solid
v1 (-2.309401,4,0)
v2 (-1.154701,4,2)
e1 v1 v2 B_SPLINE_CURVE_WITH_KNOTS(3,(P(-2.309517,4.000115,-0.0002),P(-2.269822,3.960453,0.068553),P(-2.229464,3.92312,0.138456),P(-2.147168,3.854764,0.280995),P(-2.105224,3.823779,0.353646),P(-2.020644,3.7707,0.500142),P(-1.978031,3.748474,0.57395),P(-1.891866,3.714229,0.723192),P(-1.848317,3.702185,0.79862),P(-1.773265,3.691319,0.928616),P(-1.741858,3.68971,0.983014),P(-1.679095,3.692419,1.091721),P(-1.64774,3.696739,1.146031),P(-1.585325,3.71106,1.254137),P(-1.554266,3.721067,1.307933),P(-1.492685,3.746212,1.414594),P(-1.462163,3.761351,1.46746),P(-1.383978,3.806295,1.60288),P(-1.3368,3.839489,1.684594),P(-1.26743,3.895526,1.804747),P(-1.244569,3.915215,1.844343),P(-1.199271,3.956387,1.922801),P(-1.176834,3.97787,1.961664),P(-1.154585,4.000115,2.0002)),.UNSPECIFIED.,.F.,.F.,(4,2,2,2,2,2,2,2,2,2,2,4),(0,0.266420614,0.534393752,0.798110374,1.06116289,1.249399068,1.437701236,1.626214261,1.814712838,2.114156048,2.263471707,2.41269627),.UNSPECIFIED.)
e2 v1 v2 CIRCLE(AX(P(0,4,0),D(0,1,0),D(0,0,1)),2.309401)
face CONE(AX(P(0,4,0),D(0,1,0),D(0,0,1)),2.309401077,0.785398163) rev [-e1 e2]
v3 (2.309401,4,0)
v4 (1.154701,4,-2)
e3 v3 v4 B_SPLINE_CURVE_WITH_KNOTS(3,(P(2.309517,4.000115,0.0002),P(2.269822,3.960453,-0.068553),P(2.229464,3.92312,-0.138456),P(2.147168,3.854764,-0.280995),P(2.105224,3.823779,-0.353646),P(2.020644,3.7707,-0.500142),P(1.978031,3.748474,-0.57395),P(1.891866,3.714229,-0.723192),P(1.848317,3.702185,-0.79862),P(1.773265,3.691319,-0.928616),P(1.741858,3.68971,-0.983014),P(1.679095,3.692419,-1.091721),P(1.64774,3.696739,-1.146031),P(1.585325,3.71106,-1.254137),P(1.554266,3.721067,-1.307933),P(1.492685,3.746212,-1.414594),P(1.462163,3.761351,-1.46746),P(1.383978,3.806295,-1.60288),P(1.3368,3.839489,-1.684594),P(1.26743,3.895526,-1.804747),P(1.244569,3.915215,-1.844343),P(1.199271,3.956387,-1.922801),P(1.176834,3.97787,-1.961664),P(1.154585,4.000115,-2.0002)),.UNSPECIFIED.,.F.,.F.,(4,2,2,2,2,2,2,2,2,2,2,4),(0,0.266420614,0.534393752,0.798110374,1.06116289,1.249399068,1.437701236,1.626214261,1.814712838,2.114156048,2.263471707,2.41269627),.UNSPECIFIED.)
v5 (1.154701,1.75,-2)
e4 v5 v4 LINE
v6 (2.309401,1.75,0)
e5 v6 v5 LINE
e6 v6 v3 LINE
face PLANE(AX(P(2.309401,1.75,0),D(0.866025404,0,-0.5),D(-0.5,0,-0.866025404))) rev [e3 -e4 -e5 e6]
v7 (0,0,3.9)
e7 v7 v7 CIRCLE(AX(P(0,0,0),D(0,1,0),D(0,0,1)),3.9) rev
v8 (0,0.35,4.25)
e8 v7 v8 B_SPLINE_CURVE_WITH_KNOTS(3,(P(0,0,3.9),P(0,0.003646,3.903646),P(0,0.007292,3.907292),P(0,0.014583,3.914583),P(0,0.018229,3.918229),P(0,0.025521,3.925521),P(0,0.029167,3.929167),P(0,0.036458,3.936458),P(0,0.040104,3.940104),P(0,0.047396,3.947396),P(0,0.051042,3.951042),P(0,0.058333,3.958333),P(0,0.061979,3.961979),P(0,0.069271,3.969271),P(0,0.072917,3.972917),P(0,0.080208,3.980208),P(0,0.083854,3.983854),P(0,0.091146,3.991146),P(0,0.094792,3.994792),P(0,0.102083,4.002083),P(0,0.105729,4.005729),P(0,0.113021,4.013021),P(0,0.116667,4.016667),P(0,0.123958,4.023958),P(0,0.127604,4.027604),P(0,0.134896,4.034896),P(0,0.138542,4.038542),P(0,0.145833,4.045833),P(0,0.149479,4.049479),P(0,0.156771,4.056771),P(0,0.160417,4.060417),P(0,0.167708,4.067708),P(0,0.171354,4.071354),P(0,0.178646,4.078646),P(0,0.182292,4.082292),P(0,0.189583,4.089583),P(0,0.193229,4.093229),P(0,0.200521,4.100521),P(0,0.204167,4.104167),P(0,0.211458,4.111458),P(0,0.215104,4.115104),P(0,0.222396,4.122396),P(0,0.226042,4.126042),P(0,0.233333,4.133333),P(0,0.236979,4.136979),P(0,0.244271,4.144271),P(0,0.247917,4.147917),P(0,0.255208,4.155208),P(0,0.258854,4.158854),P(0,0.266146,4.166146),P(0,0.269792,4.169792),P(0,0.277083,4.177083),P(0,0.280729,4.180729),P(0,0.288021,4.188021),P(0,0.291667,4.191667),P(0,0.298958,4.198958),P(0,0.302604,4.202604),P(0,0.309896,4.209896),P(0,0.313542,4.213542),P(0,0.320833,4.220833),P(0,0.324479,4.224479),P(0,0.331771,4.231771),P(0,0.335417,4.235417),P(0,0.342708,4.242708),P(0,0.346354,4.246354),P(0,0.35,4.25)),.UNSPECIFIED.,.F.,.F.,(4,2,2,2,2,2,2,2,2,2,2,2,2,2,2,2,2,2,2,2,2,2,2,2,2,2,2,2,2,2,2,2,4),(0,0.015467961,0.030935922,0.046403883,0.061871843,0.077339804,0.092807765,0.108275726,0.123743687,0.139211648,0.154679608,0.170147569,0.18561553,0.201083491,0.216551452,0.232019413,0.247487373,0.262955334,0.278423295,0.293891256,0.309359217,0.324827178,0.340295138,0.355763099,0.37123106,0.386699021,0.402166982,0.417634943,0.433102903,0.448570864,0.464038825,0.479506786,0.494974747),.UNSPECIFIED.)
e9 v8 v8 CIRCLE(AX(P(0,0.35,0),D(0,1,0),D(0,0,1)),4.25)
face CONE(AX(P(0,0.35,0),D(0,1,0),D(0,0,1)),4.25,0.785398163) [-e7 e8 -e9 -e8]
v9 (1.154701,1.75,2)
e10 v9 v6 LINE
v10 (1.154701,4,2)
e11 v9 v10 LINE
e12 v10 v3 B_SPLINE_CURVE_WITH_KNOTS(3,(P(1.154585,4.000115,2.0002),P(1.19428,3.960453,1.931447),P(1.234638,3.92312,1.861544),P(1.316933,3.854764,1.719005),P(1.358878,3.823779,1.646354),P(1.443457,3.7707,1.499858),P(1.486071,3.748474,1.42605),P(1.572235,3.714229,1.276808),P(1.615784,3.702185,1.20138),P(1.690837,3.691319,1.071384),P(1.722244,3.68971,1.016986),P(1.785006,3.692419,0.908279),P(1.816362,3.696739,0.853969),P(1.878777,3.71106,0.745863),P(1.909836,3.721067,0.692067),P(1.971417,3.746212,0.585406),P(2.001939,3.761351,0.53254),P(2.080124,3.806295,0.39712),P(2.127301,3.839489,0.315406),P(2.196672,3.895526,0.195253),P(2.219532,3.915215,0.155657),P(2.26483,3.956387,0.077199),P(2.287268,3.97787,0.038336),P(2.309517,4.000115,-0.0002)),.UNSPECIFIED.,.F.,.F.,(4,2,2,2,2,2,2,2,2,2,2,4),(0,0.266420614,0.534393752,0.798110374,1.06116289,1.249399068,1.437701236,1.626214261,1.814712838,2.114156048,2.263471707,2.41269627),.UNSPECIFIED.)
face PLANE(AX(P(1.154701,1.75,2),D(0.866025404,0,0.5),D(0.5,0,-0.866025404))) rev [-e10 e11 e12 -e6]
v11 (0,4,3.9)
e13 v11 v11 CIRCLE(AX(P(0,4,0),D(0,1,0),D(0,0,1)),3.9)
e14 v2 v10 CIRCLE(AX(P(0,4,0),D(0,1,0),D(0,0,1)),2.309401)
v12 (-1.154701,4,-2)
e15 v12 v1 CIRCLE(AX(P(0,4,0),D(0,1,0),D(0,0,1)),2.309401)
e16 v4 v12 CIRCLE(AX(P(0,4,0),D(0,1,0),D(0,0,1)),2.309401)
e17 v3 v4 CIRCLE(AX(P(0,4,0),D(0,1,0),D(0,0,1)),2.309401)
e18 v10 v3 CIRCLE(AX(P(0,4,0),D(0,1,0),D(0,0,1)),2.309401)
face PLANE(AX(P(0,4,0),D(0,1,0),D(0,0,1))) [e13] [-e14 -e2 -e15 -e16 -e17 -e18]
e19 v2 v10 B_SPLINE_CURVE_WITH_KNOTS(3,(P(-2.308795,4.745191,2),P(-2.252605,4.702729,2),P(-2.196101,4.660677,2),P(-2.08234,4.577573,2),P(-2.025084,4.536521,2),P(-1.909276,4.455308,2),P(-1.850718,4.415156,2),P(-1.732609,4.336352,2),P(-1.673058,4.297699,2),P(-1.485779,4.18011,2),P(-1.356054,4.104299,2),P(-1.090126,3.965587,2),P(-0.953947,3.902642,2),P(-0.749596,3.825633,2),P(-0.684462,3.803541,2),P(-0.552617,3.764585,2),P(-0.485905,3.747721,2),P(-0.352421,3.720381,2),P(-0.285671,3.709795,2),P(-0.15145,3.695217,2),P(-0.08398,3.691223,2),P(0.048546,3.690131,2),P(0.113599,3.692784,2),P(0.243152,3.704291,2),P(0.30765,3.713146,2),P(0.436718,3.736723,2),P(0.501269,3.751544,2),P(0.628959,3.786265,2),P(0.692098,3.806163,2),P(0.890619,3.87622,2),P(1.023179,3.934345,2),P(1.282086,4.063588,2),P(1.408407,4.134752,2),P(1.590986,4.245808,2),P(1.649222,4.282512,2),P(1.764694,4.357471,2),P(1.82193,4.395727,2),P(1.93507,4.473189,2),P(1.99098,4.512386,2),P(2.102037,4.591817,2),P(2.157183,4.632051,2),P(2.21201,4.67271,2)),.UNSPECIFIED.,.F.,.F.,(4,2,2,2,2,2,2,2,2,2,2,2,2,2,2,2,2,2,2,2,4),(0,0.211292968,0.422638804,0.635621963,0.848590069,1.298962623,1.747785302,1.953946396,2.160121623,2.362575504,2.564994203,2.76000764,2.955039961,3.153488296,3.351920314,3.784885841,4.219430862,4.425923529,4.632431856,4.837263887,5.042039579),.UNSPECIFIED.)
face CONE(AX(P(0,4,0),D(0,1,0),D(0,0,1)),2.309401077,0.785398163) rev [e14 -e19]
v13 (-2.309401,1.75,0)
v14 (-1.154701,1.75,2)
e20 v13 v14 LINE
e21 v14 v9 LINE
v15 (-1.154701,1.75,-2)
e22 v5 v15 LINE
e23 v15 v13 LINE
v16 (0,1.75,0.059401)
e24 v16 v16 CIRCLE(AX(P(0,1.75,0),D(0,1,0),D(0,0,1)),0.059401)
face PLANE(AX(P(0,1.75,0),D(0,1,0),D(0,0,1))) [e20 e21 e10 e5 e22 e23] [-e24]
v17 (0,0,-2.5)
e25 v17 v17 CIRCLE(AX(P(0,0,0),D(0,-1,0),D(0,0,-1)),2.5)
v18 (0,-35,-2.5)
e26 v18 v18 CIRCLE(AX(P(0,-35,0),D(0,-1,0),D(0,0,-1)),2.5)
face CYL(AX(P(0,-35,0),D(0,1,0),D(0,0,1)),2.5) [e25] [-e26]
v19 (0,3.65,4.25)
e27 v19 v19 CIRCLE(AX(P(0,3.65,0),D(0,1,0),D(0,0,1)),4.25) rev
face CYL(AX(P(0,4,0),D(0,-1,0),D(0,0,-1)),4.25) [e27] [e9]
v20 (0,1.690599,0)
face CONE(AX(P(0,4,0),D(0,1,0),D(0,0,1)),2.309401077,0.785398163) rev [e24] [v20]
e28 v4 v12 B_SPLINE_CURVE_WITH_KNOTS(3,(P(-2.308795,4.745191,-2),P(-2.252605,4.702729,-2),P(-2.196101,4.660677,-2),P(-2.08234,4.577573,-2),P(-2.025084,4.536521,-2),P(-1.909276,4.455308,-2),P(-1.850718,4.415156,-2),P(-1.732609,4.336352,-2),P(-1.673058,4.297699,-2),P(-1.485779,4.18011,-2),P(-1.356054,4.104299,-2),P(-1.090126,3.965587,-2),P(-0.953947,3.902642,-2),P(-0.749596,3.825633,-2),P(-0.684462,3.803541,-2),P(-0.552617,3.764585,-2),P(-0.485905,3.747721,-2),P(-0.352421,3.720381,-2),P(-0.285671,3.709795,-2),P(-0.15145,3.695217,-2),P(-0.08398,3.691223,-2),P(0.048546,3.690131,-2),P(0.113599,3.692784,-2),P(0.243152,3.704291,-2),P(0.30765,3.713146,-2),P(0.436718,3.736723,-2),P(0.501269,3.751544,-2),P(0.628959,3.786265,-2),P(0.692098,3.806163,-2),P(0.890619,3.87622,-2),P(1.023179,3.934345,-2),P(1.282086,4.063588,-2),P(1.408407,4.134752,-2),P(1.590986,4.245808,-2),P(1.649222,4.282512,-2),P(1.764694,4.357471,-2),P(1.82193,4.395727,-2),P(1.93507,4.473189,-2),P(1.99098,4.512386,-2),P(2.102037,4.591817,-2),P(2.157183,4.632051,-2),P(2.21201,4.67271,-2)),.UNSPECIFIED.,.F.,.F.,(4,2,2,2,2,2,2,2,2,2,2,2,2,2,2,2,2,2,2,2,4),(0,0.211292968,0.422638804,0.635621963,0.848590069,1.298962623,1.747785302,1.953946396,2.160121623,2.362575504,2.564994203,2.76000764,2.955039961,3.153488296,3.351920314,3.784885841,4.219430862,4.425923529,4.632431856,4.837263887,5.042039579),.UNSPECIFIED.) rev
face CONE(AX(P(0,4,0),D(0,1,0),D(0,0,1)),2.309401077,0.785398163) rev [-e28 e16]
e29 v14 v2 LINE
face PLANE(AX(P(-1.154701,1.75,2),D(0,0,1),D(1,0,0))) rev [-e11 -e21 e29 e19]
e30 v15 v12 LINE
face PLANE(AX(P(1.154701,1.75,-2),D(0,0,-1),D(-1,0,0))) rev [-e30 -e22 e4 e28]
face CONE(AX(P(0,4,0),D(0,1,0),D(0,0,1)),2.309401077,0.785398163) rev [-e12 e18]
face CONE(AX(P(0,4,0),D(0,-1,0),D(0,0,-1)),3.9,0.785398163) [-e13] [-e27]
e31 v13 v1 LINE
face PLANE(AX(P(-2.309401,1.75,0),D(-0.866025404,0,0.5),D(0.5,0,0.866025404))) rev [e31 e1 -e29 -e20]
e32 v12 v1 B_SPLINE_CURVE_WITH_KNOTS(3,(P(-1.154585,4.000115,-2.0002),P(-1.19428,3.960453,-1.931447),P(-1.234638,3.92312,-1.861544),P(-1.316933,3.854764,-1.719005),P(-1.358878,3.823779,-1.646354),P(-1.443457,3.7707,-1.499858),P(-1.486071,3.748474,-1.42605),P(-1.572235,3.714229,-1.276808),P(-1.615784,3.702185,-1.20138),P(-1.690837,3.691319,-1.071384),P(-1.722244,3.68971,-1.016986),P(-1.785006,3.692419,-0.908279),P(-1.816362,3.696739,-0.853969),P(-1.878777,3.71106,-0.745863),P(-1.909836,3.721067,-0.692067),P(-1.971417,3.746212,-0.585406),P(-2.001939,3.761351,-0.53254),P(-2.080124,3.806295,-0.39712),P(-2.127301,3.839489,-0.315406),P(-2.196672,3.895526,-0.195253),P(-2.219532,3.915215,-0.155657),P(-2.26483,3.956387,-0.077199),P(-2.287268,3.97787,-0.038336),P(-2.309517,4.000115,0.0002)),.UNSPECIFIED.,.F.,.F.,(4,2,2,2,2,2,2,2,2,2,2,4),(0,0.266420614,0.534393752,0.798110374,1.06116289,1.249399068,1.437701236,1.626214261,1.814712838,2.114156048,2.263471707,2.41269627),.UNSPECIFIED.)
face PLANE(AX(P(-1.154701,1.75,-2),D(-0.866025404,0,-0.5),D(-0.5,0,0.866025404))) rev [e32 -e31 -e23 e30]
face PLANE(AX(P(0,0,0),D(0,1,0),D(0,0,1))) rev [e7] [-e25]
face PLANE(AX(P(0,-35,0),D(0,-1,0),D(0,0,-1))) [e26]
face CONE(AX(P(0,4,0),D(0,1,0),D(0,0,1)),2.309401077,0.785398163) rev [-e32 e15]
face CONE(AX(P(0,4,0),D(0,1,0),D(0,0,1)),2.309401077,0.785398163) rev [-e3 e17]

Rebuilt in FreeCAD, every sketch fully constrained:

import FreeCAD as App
import Part
import Sketcher
Q = App.Units.Quantity


def edges_at(feature, points):
    """Names of the edges that pass closest to the given points."""
    edges = feature.Shape.Edges
    near = lambda p: min(range(len(edges)), key=lambda i: edges[i].distToShape(Part.Vertex(*p))[0])
    return sorted({f"Edge{near(p) + 1}" for p in points})

doc = App.newDocument("Part")
body = doc.addObject("PartDesign::Body", "Body")

# Sketch on XZ plane
sketch1 = body.newObject("Sketcher::SketchObject", "Sketch")
sketch1.AttachmentSupport = (doc.getObject("XZ_Plane"), [""])
sketch1.MapMode = "FlatFace"
sketch1.addGeometry(Part.Circle(App.Vector(0, 0, 0), App.Vector(0, 0, 1), 4.25), False)
sketch1.addConstraint([
    Sketcher.Constraint("Coincident", 0, 3, -1, 1),
    Sketcher.Constraint("Diameter", 0, 8.5),
])
pad1 = body.newObject("PartDesign::Pad", "Pad")
pad1.Profile = sketch1
pad1.Length = 4
pad1.Reversed = True

# Sketch on XZ plane
sketch2 = body.newObject("Sketcher::SketchObject", "Sketch001")
sketch2.AttachmentSupport = (doc.getObject("XZ_Plane"), [""])
sketch2.MapMode = "FlatFace"
sketch2.AttachmentOffset = App.Placement(App.Vector(0, 0, -4), App.Rotation())
sketch2.addGeometry([
    Part.LineSegment(App.Vector(1.154701, -2, 0), App.Vector(-1.154701, -2, 0)),  # 0
    Part.LineSegment(App.Vector(-1.154701, -2, 0), App.Vector(-2.309401, 0, 0)),  # 1
    Part.LineSegment(App.Vector(-2.309401, 0, 0), App.Vector(-1.154701, 2, 0)),  # 2
    Part.LineSegment(App.Vector(-1.154701, 2, 0), App.Vector(1.154701, 2, 0)),  # 3
    Part.LineSegment(App.Vector(1.154701, 2, 0), App.Vector(2.309401, 0, 0)),  # 4
    Part.LineSegment(App.Vector(2.309401, 0, 0), App.Vector(1.154701, -2, 0)),  # 5
], False)
sketch2.addConstraint([
    Sketcher.Constraint("Coincident", 0, 2, 1, 1),
    Sketcher.Constraint("Coincident", 1, 2, 2, 1),
    Sketcher.Constraint("Coincident", 2, 2, 3, 1),
    Sketcher.Constraint("Coincident", 3, 2, 4, 1),
    Sketcher.Constraint("Coincident", 4, 2, 5, 1),
    Sketcher.Constraint("Coincident", 5, 2, 0, 1),
    Sketcher.Constraint("Horizontal", 0),
    Sketcher.Constraint("Horizontal", 3),
    Sketcher.Constraint("Symmetric", 0, 2, 3, 2, -1, 1),
    Sketcher.Constraint("Symmetric", 1, 2, 4, 2, -1, 1),
    Sketcher.Constraint("PointOnObject", 1, 2, -1),
    Sketcher.Constraint("Parallel", 2, 5),
    Sketcher.Constraint("Vertical", 0, 2, 2, 2),
    Sketcher.Constraint("Angle", 1, Q("120 deg")),
    Sketcher.Constraint("DistanceY", 0, 2, -1, 1, 2.0),
    Sketcher.Constraint("DistanceX", 0, 2, 0, 1, 2.309401),
])
pocket1 = body.newObject("PartDesign::Pocket", "Pocket")
pocket1.Profile = sketch2
pocket1.Length = 2.25
pocket1.Reversed = True

# Sketch on YZ plane
sketch3 = body.newObject("Sketcher::SketchObject", "Sketch002")
sketch3.AttachmentSupport = (doc.getObject("YZ_Plane"), [""])
sketch3.MapMode = "FlatFace"
sketch3.addGeometry([
    Part.LineSegment(App.Vector(4, 0, 0), App.Vector(4, 2.309401, 0)),
    Part.LineSegment(App.Vector(4, 2.309401, 0), App.Vector(1.690599, 0, 0)),
    Part.LineSegment(App.Vector(1.690599, 0, 0), App.Vector(4, 0, 0)),
], False)
sketch3.addConstraint([
    Sketcher.Constraint("Coincident", 0, 2, 1, 1),
    Sketcher.Constraint("Coincident", 1, 2, 2, 1),
    Sketcher.Constraint("Coincident", 2, 2, 0, 1),
    Sketcher.Constraint("Vertical", 0),
    Sketcher.Constraint("Horizontal", 2),
    Sketcher.Constraint("PointOnObject", 1, 2, -1),
    Sketcher.Constraint("Equal", 2, 0),
    Sketcher.Constraint("DistanceX", -1, 1, 0, 2, 4.0),
    Sketcher.Constraint("DistanceX", 2, 1, 2, 2, 2.309401),
])
groove = body.newObject("PartDesign::Groove", "Groove")
groove.Profile = sketch3
groove.ReferenceAxis = (sketch3, ["H_Axis"])
groove.Angle = 360
doc.recompute()

chamfer = body.newObject("PartDesign::Chamfer", "Chamfer")
chamfer.Base = (groove, edges_at(groove, [(0, 0, -4.25), (0, 4, -4.25)]))
chamfer.Size = 0.35

# Sketch on XZ plane
sketch4 = body.newObject("Sketcher::SketchObject", "Sketch003")
sketch4.AttachmentSupport = (doc.getObject("XZ_Plane"), [""])
sketch4.MapMode = "FlatFace"
sketch4.addGeometry(Part.Circle(App.Vector(0, 0, 0), App.Vector(0, 0, 1), 2.5), False)
sketch4.addConstraint([
    Sketcher.Constraint("Coincident", 0, 3, -1, 1),
    Sketcher.Constraint("Diameter", 0, 5.0),
])
pad2 = body.newObject("PartDesign::Pad", "Pad001")
pad2.Profile = sketch4
pad2.Length = 35

doc.recompute()
